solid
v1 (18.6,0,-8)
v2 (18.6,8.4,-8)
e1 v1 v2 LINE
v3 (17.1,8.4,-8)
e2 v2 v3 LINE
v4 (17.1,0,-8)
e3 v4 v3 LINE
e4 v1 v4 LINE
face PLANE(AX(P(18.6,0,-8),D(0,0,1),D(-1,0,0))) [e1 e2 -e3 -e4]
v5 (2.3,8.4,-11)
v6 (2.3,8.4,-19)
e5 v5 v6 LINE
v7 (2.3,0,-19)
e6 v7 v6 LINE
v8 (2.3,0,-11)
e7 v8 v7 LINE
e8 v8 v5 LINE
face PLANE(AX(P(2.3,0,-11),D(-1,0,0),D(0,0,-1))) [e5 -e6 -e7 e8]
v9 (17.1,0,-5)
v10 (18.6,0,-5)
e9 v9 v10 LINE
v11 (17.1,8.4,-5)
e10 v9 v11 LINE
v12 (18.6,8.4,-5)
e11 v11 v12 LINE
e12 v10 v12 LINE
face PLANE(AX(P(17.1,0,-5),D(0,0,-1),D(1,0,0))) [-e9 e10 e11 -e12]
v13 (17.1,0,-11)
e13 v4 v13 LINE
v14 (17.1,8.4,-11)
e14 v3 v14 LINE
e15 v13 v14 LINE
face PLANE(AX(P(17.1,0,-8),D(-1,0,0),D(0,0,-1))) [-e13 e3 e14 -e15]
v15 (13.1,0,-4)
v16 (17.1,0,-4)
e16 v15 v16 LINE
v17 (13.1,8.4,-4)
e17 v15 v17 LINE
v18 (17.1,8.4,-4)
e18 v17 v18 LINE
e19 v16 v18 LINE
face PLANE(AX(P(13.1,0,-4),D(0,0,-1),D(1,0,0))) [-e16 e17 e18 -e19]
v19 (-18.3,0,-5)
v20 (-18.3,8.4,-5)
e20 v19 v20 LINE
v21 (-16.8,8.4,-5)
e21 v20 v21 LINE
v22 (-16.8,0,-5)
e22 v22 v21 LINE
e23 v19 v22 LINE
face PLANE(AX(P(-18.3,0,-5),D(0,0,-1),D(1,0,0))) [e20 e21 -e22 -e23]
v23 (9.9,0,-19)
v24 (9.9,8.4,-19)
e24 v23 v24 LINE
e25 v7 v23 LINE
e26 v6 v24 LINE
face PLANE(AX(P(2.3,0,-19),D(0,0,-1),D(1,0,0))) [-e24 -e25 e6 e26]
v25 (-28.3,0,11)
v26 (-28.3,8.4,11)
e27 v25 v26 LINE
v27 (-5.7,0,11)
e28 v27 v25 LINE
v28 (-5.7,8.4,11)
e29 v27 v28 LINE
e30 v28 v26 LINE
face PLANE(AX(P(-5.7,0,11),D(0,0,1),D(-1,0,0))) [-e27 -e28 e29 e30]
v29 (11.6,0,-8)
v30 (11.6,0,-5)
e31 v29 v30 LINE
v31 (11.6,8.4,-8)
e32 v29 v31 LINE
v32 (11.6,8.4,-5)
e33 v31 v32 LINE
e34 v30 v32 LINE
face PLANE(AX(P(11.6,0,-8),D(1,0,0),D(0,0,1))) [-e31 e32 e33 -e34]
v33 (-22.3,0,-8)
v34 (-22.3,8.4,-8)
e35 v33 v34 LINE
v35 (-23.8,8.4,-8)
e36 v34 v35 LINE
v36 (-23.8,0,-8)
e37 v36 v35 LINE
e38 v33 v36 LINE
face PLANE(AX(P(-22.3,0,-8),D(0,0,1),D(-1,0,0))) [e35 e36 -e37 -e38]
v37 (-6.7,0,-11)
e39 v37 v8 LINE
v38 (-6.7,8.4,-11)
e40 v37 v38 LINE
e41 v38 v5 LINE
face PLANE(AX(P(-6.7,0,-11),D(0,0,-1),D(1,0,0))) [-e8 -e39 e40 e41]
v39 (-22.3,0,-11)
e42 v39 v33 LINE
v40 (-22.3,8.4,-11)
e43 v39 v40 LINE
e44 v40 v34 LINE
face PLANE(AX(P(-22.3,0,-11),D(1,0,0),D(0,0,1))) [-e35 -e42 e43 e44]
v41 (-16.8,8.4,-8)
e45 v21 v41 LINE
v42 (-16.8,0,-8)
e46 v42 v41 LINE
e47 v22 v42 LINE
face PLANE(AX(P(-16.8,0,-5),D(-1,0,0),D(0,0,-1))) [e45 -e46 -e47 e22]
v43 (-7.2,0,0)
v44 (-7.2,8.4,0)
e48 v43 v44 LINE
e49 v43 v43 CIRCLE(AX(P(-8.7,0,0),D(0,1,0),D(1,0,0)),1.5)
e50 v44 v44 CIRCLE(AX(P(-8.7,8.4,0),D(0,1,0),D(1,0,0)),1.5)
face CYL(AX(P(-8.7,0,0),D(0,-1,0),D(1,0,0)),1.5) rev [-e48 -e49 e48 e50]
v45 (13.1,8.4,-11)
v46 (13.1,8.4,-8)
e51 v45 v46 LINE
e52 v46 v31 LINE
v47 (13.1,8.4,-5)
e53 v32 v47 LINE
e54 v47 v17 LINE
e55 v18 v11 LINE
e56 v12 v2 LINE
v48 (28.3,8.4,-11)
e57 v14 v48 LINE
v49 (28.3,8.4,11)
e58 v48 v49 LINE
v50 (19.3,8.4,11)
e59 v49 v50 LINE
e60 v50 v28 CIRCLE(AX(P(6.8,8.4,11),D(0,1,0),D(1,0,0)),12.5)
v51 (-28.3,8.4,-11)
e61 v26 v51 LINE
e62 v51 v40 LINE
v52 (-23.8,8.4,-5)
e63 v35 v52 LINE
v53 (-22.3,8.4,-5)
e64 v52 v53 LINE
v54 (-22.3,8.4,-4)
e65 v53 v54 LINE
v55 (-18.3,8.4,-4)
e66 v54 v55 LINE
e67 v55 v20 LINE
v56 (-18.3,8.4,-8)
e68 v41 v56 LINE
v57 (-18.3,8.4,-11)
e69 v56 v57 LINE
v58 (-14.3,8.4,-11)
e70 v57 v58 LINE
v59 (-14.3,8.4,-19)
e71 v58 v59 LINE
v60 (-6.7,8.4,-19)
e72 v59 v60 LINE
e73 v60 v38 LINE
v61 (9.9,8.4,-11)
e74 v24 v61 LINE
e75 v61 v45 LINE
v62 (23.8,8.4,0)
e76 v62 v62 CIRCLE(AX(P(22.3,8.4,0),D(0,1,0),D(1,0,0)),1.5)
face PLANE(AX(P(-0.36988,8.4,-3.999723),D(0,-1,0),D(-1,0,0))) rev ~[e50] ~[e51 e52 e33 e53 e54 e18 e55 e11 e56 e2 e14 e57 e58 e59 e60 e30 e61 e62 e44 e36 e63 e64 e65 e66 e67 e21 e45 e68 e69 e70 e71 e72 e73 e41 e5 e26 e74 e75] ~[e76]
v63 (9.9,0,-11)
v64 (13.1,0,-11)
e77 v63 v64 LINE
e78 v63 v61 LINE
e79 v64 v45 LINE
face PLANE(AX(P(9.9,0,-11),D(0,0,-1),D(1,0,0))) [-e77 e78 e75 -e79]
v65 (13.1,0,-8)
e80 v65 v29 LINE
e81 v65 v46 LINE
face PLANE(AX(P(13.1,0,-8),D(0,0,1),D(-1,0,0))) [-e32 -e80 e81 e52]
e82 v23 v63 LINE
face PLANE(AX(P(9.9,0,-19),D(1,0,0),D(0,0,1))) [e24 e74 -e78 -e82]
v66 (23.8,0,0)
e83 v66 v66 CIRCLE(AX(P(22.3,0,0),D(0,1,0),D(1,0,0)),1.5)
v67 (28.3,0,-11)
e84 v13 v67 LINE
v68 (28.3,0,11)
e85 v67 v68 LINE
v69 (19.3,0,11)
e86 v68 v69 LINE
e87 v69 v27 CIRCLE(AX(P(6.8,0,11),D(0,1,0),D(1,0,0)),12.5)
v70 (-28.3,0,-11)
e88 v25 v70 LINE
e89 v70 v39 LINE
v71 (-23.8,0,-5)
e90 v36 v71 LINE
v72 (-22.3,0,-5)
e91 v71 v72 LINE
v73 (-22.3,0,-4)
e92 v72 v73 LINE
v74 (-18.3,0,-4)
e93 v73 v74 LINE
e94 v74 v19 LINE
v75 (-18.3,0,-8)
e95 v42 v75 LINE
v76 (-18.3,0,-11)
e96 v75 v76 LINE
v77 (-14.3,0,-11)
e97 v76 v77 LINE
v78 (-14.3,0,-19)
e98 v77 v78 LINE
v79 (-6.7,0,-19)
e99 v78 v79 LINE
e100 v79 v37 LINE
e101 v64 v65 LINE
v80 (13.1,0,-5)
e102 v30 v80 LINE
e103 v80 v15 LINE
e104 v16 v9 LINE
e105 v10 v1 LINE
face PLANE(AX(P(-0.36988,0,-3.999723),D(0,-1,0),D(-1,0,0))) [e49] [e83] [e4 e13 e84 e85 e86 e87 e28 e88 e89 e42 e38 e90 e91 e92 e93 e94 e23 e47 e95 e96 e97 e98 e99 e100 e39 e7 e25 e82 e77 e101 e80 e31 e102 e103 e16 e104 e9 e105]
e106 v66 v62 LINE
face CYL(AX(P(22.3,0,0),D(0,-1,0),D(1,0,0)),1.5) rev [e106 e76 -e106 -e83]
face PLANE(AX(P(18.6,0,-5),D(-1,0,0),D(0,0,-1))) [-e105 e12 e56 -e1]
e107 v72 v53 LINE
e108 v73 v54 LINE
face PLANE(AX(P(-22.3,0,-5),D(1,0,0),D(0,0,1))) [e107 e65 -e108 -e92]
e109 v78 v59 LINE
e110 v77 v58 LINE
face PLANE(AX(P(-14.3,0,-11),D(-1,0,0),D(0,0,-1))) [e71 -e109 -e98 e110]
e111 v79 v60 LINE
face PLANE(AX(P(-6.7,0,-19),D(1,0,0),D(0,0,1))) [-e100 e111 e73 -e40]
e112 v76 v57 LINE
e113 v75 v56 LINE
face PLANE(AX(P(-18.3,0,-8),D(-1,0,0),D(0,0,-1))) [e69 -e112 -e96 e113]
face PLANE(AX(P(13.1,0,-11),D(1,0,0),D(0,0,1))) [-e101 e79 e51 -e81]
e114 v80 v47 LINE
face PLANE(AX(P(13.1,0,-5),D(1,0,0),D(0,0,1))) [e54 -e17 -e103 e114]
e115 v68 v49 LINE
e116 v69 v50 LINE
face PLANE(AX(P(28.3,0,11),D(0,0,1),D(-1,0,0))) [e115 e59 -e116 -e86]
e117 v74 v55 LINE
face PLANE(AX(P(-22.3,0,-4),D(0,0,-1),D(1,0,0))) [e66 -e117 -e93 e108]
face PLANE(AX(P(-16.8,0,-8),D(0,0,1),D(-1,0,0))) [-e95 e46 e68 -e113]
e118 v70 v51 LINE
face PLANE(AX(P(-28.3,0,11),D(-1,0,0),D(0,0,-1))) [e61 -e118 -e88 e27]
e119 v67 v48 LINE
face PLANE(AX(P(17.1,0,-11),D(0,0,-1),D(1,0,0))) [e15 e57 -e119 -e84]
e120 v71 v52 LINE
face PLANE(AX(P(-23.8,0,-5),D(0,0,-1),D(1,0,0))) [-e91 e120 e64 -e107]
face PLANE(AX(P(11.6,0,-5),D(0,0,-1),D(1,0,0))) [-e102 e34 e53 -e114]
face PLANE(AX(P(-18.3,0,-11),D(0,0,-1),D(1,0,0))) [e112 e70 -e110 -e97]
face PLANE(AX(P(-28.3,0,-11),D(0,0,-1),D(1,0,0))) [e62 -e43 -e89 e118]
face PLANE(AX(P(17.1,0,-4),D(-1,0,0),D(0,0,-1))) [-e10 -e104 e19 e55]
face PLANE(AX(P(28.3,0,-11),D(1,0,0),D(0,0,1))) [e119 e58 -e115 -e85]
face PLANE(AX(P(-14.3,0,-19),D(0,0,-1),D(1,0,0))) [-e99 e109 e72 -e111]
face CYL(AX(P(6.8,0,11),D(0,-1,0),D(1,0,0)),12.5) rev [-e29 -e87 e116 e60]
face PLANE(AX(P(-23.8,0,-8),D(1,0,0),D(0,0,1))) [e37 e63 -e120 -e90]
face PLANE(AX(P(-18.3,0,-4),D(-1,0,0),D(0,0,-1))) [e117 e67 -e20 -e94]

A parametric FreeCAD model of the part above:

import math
import FreeCAD as App
import Part
import Sketcher

V = App.Vector
Q = App.Units.Quantity

doc = App.newDocument("Part")
params = doc.addObject("Spreadsheet::Sheet", "Params")
for row, (alias, value) in enumerate([
    ("sketch1_diameter", "3 mm"),
    ("sketch1_radius", "12.5 mm"),
    ("sketch1_width", "6 mm"),
    ("sketch1_width2", "9 mm"),
    ("sketch1_width3", "4 mm"),
    ("pad1_length", "8.4 mm"),
], start=1):
    params.set(f"A{row}", alias)
    params.set(f"B{row}", "=" + value)
    params.setAlias(f"B{row}", alias)

body = doc.addObject("PartDesign::Body", "Body")

sketch1 = doc.addObject("Sketcher::SketchObject", "Sketch")
body.addObject(sketch1)
sketch1.AttachmentSupport = (doc.XZ_Plane, [""])
sketch1.MapMode = "FlatFace"
sketch1.addGeometry([
    Part.LineSegment(V(-22.3, -11, 0), V(-28.3, -11, 0)),
    Part.LineSegment(V(-28.3, -11, 0), V(-28.3, 11, 0)),
    Part.LineSegment(V(-28.3, 11, 0), V(-5.7, 11, 0)),
    Part.ArcOfCircle(Part.Circle(V(6.8, 11, 0), V(0, 0, 1), 12.5), math.radians(180), math.radians(360)),
    Part.LineSegment(V(19.3, 11, 0), V(28.3, 11, 0)),
    Part.LineSegment(V(28.3, 11, 0), V(28.3, -11, 0)),
    Part.LineSegment(V(28.3, -11, 0), V(17.1, -11, 0)),
    Part.LineSegment(V(17.1, -11, 0), V(17.1, -8, 0)),
    Part.LineSegment(V(17.1, -8, 0), V(18.6, -8, 0)),
    Part.LineSegment(V(18.6, -8, 0), V(18.6, -5, 0)),
    Part.LineSegment(V(18.6, -5, 0), V(17.1, -5, 0)),
    Part.LineSegment(V(17.1, -5, 0), V(17.1, -4, 0)),
    Part.LineSegment(V(17.1, -4, 0), V(13.1, -4, 0)),
    Part.LineSegment(V(13.1, -4, 0), V(13.1, -5, 0)),
    Part.LineSegment(V(13.1, -5, 0), V(11.6, -5, 0)),
    Part.LineSegment(V(11.6, -5, 0), V(11.6, -8, 0)),
    Part.LineSegment(V(11.6, -8, 0), V(13.1, -8, 0)),
    Part.LineSegment(V(13.1, -8, 0), V(13.1, -11, 0)),
    Part.LineSegment(V(13.1, -11, 0), V(9.9, -11, 0)),
    Part.LineSegment(V(9.9, -11, 0), V(9.9, -19, 0)),
    Part.LineSegment(V(9.9, -19, 0), V(2.3, -19, 0)),
    Part.LineSegment(V(2.3, -19, 0), V(2.3, -11, 0)),
    Part.LineSegment(V(2.3, -11, 0), V(-6.7, -11, 0)),
    Part.LineSegment(V(-6.7, -11, 0), V(-6.7, -19, 0)),
    Part.LineSegment(V(-6.7, -19, 0), V(-14.3, -19, 0)),
    Part.LineSegment(V(-14.3, -19, 0), V(-14.3, -11, 0)),
    Part.LineSegment(V(-14.3, -11, 0), V(-18.3, -11, 0)),
    Part.LineSegment(V(-18.3, -11, 0), V(-18.3, -8, 0)),
    Part.LineSegment(V(-18.3, -8, 0), V(-16.8, -8, 0)),
    Part.LineSegment(V(-16.8, -8, 0), V(-16.8, -5, 0)),
    Part.LineSegment(V(-16.8, -5, 0), V(-18.3, -5, 0)),
    Part.LineSegment(V(-18.3, -5, 0), V(-18.3, -4, 0)),
    Part.LineSegment(V(-18.3, -4, 0), V(-22.3, -4, 0)),
    Part.LineSegment(V(-22.3, -4, 0), V(-22.3, -5, 0)),
    Part.LineSegment(V(-22.3, -5, 0), V(-23.8, -5, 0)),
    Part.LineSegment(V(-23.8, -5, 0), V(-23.8, -8, 0)),
    Part.LineSegment(V(-23.8, -8, 0), V(-22.3, -8, 0)),
    Part.LineSegment(V(-22.3, -8, 0), V(-22.3, -11, 0)),
    Part.Circle(V(22.3, 0, 0), V(0, 0, 1), 1.5),
    Part.Circle(V(-8.7, 0, 0), V(0, 0, 1), 1.5),
], False)
sketch1.addConstraint([
    Sketcher.Constraint("Coincident", 0, 2, 1, 1),
    Sketcher.Constraint("Coincident", 1, 2, 2, 1),
    Sketcher.Constraint("Coincident", 2, 2, 3, 1),
    Sketcher.Constraint("Coincident", 3, 2, 4, 1),
    Sketcher.Constraint("Coincident", 4, 2, 5, 1),
    Sketcher.Constraint("Coincident", 5, 2, 6, 1),
    Sketcher.Constraint("Coincident", 6, 2, 7, 1),
    Sketcher.Constraint("Coincident", 7, 2, 8, 1),
    Sketcher.Constraint("Coincident", 8, 2, 9, 1),
    Sketcher.Constraint("Coincident", 9, 2, 10, 1),
    Sketcher.Constraint("Coincident", 10, 2, 11, 1),
    Sketcher.Constraint("Coincident", 11, 2, 12, 1),
    Sketcher.Constraint("Coincident", 12, 2, 13, 1),
    Sketcher.Constraint("Coincident", 13, 2, 14, 1),
    Sketcher.Constraint("Coincident", 14, 2, 15, 1),
    Sketcher.Constraint("Coincident", 15, 2, 16, 1),
    Sketcher.Constraint("Coincident", 16, 2, 17, 1),
    Sketcher.Constraint("Coincident", 17, 2, 18, 1),
    Sketcher.Constraint("Coincident", 18, 2, 19, 1),
    Sketcher.Constraint("Coincident", 19, 2, 20, 1),
    Sketcher.Constraint("Coincident", 20, 2, 21, 1),
    Sketcher.Constraint("Coincident", 21, 2, 22, 1),
    Sketcher.Constraint("Coincident", 22, 2, 23, 1),
    Sketcher.Constraint("Coincident", 23, 2, 24, 1),
    Sketcher.Constraint("Coincident", 24, 2, 25, 1),
    Sketcher.Constraint("Coincident", 25, 2, 26, 1),
    Sketcher.Constraint("Coincident", 26, 2, 27, 1),
    Sketcher.Constraint("Coincident", 27, 2, 28, 1),
    Sketcher.Constraint("Coincident", 28, 2, 29, 1),
    Sketcher.Constraint("Coincident", 29, 2, 30, 1),
    Sketcher.Constraint("Coincident", 30, 2, 31, 1),
    Sketcher.Constraint("Coincident", 31, 2, 32, 1),
    Sketcher.Constraint("Coincident", 32, 2, 33, 1),
    Sketcher.Constraint("Coincident", 33, 2, 34, 1),
    Sketcher.Constraint("Coincident", 34, 2, 35, 1),
    Sketcher.Constraint("Coincident", 35, 2, 36, 1),
    Sketcher.Constraint("Coincident", 36, 2, 37, 1),
    Sketcher.Constraint("Coincident", 37, 2, 0, 1),
    Sketcher.Constraint("Horizontal", 0),
    Sketcher.Constraint("Vertical", 1),
    Sketcher.Constraint("Horizontal", 2),
    Sketcher.Constraint("Horizontal", 4),
    Sketcher.Constraint("Vertical", 5),
    Sketcher.Constraint("Horizontal", 6),
    Sketcher.Constraint("Vertical", 7),
    Sketcher.Constraint("Horizontal", 8),
    Sketcher.Constraint("Vertical", 9),
    Sketcher.Constraint("Horizontal", 10),
    Sketcher.Constraint("Vertical", 11),
    Sketcher.Constraint("Horizontal", 12),
    Sketcher.Constraint("Vertical", 13),
    Sketcher.Constraint("Horizontal", 14),
    Sketcher.Constraint("Vertical", 15),
    Sketcher.Constraint("Horizontal", 16),
    Sketcher.Constraint("Vertical", 17),
    Sketcher.Constraint("Horizontal", 18),
    Sketcher.Constraint("Vertical", 19),
    Sketcher.Constraint("Horizontal", 20),
    Sketcher.Constraint("Vertical", 21),
    Sketcher.Constraint("Horizontal", 22),
    Sketcher.Constraint("Vertical", 23),
    Sketcher.Constraint("Horizontal", 24),
    Sketcher.Constraint("Vertical", 25),
    Sketcher.Constraint("Horizontal", 26),
    Sketcher.Constraint("Vertical", 27),
    Sketcher.Constraint("Horizontal", 28),
    Sketcher.Constraint("Vertical", 29),
    Sketcher.Constraint("Horizontal", 30),
    Sketcher.Constraint("Vertical", 31),
    Sketcher.Constraint("Horizontal", 32),
    Sketcher.Constraint("Vertical", 33),
    Sketcher.Constraint("Horizontal", 34),
    Sketcher.Constraint("Vertical", 35),
    Sketcher.Constraint("Horizontal", 36),
    Sketcher.Constraint("Vertical", 37),
    Sketcher.Constraint("Equal", 38, 39),
    Sketcher.Constraint("Symmetric", 0, 2, 4, 2, -1, 1),
    Sketcher.Constraint("PointOnObject", 38, 3, -1),
    Sketcher.Constraint("PointOnObject", 39, 3, -1),
    Sketcher.Constraint("Horizontal", 3, 3, 1, 2),
    Sketcher.Constraint("Horizontal", 2, 2, 3, 2),
    Sketcher.Constraint("Horizontal", 0, 2, 5, 2),
    Sketcher.Constraint("Horizontal", 10, 2, 13, 2),
    Sketcher.Constraint("Horizontal", 8, 2, 15, 2),
    Sketcher.Constraint("Horizontal", 6, 2, 17, 2),
    Sketcher.Constraint("Horizontal", 18, 2, 21, 2),
    Sketcher.Constraint("Horizontal", 20, 2, 23, 2),
    Sketcher.Constraint("Horizontal", 22, 2, 25, 2),
    Sketcher.Constraint("Horizontal", 16, 2, 27, 2),
    Sketcher.Constraint("Horizontal", 14, 2, 29, 2),
    Sketcher.Constraint("Horizontal", 12, 2, 31, 2),
    Sketcher.Constraint("Horizontal", 30, 2, 33, 2),
    Sketcher.Constraint("Horizontal", 28, 2, 35, 2),
    Sketcher.Constraint("Vertical", 7, 2, 10, 2),
    Sketcher.Constraint("Vertical", 13, 2, 16, 2),
    Sketcher.Constraint("Vertical", 27, 2, 30, 2),
    Sketcher.Constraint("Vertical", 33, 2, 36, 2),
    Sketcher.Constraint("Equal", 10, 14),
    Sketcher.Constraint("Equal", 4, 22),
    Sketcher.Constraint("Equal", 20, 24),
    Sketcher.Constraint("Equal", 12, 26),
    Sketcher.Constraint("Equal", 16, 28),
    Sketcher.Constraint("Equal", 26, 32),
    Sketcher.Constraint("Equal", 30, 34),
    Sketcher.Constraint("Equal", 7, 9),
    Sketcher.Constraint("Diameter", 38, Q("3 mm")),
    Sketcher.Constraint("Radius", 3, Q("12.5 mm")),
    Sketcher.Constraint("DistanceX", 0, 2, 0, 1, Q("6 mm")),
    Sketcher.Constraint("DistanceX", 4, 1, 4, 2, Q("9 mm")),
    Sketcher.Constraint("DistanceX", 12, 2, 12, 1, Q("4 mm")),
    Sketcher.Constraint("DistanceY", 1, 1, 1, 2, Q("22 mm")),
    Sketcher.Constraint("DistanceY", 7, 1, 7, 2, Q("3 mm")),
    Sketcher.Constraint("DistanceY", 11, 1, 11, 2, Q("1 mm")),
    Sketcher.Constraint("DistanceY", 19, 2, 19, 1, Q("8 mm")),
    Sketcher.Constraint("DistanceX", 2, 1, 2, 2, Q("22.6 mm")),
    Sketcher.Constraint("DistanceX", 6, 2, 6, 1, Q("11.2 mm")),
    Sketcher.Constraint("DistanceX", 8, 1, 8, 2, Q("1.5 mm")),
    Sketcher.Constraint("DistanceX", 18, 2, 18, 1, Q("3.2 mm")),
    Sketcher.Constraint("DistanceX", 39, 3, 38, 3, Q("31 mm")),
    Sketcher.Constraint("DistanceX", 39, 3, 2, 2, Q("3 mm")),
])
sketch1.setExpression("Constraints[105]", "Params.sketch1_diameter")
sketch1.setExpression("Constraints[106]", "Params.sketch1_radius")
sketch1.setExpression("Constraints[107]", "Params.sketch1_width")
sketch1.setExpression("Constraints[108]", "Params.sketch1_width2")
sketch1.setExpression("Constraints[109]", "Params.sketch1_width3")
pad1 = doc.addObject("PartDesign::Pad", "Pad")
body.addObject(pad1)
pad1.Profile = sketch1
pad1.setExpression("Length", "Params.pad1_length")
pad1.Reversed = True

doc.recompute()
